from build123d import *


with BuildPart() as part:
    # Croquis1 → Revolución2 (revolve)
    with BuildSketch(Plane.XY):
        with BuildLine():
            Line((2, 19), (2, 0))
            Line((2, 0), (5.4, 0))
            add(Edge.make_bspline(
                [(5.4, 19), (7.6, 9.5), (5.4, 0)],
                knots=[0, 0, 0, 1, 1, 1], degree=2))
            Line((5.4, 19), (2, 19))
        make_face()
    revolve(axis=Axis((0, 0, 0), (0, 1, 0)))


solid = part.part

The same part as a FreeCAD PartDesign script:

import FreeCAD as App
import Part
import Sketcher
Q = App.Units.Quantity

doc = App.newDocument("Part")
body = doc.addObject("PartDesign::Body", "Body")

# Sketch on XY plane
sketch1 = body.newObject("Sketcher::SketchObject", "Sketch")
sketch1.AttachmentSupport = (doc.getObject("XY_Plane"), [""])
sketch1.MapMode = "FlatFace"
sketch1.addGeometry([
    Part.LineSegment(App.Vector(2, 19, 0), App.Vector(2, 0, 0)),
    Part.LineSegment(App.Vector(2, 0, 0), App.Vector(5.4, 0, 0)),
    Part.BSplineCurve([App.Vector(5.4, 19, 0), App.Vector(7.6, 9.5, 0), App.Vector(5.4, 0, 0)], [3, 3], [0, 1], False, 2, [1, 1, 1], False),
    Part.LineSegment(App.Vector(5.4, 19, 0), App.Vector(2, 19, 0)),
], False)
sketch1.addConstraint([
    Sketcher.Constraint("Block", 2),
    Sketcher.Constraint("Coincident", 0, 2, 1, 1),
    Sketcher.Constraint("Coincident", 1, 2, 2, 2),
    Sketcher.Constraint("Coincident", 2, 1, 3, 1),
    Sketcher.Constraint("Coincident", 3, 2, 0, 1),
    Sketcher.Constraint("Vertical", 0),
    Sketcher.Constraint("Horizontal", 1),
    Sketcher.Constraint("Horizontal", 3),
    Sketcher.Constraint("DistanceX", 1, 1, 1, 2, Q("3.4 mm")),
])
revolution = body.newObject("PartDesign::Revolution", "Revolution")
revolution.Profile = sketch1
revolution.ReferenceAxis = (sketch1, ["V_Axis"])
revolution.Angle = 360

doc.recompute()
